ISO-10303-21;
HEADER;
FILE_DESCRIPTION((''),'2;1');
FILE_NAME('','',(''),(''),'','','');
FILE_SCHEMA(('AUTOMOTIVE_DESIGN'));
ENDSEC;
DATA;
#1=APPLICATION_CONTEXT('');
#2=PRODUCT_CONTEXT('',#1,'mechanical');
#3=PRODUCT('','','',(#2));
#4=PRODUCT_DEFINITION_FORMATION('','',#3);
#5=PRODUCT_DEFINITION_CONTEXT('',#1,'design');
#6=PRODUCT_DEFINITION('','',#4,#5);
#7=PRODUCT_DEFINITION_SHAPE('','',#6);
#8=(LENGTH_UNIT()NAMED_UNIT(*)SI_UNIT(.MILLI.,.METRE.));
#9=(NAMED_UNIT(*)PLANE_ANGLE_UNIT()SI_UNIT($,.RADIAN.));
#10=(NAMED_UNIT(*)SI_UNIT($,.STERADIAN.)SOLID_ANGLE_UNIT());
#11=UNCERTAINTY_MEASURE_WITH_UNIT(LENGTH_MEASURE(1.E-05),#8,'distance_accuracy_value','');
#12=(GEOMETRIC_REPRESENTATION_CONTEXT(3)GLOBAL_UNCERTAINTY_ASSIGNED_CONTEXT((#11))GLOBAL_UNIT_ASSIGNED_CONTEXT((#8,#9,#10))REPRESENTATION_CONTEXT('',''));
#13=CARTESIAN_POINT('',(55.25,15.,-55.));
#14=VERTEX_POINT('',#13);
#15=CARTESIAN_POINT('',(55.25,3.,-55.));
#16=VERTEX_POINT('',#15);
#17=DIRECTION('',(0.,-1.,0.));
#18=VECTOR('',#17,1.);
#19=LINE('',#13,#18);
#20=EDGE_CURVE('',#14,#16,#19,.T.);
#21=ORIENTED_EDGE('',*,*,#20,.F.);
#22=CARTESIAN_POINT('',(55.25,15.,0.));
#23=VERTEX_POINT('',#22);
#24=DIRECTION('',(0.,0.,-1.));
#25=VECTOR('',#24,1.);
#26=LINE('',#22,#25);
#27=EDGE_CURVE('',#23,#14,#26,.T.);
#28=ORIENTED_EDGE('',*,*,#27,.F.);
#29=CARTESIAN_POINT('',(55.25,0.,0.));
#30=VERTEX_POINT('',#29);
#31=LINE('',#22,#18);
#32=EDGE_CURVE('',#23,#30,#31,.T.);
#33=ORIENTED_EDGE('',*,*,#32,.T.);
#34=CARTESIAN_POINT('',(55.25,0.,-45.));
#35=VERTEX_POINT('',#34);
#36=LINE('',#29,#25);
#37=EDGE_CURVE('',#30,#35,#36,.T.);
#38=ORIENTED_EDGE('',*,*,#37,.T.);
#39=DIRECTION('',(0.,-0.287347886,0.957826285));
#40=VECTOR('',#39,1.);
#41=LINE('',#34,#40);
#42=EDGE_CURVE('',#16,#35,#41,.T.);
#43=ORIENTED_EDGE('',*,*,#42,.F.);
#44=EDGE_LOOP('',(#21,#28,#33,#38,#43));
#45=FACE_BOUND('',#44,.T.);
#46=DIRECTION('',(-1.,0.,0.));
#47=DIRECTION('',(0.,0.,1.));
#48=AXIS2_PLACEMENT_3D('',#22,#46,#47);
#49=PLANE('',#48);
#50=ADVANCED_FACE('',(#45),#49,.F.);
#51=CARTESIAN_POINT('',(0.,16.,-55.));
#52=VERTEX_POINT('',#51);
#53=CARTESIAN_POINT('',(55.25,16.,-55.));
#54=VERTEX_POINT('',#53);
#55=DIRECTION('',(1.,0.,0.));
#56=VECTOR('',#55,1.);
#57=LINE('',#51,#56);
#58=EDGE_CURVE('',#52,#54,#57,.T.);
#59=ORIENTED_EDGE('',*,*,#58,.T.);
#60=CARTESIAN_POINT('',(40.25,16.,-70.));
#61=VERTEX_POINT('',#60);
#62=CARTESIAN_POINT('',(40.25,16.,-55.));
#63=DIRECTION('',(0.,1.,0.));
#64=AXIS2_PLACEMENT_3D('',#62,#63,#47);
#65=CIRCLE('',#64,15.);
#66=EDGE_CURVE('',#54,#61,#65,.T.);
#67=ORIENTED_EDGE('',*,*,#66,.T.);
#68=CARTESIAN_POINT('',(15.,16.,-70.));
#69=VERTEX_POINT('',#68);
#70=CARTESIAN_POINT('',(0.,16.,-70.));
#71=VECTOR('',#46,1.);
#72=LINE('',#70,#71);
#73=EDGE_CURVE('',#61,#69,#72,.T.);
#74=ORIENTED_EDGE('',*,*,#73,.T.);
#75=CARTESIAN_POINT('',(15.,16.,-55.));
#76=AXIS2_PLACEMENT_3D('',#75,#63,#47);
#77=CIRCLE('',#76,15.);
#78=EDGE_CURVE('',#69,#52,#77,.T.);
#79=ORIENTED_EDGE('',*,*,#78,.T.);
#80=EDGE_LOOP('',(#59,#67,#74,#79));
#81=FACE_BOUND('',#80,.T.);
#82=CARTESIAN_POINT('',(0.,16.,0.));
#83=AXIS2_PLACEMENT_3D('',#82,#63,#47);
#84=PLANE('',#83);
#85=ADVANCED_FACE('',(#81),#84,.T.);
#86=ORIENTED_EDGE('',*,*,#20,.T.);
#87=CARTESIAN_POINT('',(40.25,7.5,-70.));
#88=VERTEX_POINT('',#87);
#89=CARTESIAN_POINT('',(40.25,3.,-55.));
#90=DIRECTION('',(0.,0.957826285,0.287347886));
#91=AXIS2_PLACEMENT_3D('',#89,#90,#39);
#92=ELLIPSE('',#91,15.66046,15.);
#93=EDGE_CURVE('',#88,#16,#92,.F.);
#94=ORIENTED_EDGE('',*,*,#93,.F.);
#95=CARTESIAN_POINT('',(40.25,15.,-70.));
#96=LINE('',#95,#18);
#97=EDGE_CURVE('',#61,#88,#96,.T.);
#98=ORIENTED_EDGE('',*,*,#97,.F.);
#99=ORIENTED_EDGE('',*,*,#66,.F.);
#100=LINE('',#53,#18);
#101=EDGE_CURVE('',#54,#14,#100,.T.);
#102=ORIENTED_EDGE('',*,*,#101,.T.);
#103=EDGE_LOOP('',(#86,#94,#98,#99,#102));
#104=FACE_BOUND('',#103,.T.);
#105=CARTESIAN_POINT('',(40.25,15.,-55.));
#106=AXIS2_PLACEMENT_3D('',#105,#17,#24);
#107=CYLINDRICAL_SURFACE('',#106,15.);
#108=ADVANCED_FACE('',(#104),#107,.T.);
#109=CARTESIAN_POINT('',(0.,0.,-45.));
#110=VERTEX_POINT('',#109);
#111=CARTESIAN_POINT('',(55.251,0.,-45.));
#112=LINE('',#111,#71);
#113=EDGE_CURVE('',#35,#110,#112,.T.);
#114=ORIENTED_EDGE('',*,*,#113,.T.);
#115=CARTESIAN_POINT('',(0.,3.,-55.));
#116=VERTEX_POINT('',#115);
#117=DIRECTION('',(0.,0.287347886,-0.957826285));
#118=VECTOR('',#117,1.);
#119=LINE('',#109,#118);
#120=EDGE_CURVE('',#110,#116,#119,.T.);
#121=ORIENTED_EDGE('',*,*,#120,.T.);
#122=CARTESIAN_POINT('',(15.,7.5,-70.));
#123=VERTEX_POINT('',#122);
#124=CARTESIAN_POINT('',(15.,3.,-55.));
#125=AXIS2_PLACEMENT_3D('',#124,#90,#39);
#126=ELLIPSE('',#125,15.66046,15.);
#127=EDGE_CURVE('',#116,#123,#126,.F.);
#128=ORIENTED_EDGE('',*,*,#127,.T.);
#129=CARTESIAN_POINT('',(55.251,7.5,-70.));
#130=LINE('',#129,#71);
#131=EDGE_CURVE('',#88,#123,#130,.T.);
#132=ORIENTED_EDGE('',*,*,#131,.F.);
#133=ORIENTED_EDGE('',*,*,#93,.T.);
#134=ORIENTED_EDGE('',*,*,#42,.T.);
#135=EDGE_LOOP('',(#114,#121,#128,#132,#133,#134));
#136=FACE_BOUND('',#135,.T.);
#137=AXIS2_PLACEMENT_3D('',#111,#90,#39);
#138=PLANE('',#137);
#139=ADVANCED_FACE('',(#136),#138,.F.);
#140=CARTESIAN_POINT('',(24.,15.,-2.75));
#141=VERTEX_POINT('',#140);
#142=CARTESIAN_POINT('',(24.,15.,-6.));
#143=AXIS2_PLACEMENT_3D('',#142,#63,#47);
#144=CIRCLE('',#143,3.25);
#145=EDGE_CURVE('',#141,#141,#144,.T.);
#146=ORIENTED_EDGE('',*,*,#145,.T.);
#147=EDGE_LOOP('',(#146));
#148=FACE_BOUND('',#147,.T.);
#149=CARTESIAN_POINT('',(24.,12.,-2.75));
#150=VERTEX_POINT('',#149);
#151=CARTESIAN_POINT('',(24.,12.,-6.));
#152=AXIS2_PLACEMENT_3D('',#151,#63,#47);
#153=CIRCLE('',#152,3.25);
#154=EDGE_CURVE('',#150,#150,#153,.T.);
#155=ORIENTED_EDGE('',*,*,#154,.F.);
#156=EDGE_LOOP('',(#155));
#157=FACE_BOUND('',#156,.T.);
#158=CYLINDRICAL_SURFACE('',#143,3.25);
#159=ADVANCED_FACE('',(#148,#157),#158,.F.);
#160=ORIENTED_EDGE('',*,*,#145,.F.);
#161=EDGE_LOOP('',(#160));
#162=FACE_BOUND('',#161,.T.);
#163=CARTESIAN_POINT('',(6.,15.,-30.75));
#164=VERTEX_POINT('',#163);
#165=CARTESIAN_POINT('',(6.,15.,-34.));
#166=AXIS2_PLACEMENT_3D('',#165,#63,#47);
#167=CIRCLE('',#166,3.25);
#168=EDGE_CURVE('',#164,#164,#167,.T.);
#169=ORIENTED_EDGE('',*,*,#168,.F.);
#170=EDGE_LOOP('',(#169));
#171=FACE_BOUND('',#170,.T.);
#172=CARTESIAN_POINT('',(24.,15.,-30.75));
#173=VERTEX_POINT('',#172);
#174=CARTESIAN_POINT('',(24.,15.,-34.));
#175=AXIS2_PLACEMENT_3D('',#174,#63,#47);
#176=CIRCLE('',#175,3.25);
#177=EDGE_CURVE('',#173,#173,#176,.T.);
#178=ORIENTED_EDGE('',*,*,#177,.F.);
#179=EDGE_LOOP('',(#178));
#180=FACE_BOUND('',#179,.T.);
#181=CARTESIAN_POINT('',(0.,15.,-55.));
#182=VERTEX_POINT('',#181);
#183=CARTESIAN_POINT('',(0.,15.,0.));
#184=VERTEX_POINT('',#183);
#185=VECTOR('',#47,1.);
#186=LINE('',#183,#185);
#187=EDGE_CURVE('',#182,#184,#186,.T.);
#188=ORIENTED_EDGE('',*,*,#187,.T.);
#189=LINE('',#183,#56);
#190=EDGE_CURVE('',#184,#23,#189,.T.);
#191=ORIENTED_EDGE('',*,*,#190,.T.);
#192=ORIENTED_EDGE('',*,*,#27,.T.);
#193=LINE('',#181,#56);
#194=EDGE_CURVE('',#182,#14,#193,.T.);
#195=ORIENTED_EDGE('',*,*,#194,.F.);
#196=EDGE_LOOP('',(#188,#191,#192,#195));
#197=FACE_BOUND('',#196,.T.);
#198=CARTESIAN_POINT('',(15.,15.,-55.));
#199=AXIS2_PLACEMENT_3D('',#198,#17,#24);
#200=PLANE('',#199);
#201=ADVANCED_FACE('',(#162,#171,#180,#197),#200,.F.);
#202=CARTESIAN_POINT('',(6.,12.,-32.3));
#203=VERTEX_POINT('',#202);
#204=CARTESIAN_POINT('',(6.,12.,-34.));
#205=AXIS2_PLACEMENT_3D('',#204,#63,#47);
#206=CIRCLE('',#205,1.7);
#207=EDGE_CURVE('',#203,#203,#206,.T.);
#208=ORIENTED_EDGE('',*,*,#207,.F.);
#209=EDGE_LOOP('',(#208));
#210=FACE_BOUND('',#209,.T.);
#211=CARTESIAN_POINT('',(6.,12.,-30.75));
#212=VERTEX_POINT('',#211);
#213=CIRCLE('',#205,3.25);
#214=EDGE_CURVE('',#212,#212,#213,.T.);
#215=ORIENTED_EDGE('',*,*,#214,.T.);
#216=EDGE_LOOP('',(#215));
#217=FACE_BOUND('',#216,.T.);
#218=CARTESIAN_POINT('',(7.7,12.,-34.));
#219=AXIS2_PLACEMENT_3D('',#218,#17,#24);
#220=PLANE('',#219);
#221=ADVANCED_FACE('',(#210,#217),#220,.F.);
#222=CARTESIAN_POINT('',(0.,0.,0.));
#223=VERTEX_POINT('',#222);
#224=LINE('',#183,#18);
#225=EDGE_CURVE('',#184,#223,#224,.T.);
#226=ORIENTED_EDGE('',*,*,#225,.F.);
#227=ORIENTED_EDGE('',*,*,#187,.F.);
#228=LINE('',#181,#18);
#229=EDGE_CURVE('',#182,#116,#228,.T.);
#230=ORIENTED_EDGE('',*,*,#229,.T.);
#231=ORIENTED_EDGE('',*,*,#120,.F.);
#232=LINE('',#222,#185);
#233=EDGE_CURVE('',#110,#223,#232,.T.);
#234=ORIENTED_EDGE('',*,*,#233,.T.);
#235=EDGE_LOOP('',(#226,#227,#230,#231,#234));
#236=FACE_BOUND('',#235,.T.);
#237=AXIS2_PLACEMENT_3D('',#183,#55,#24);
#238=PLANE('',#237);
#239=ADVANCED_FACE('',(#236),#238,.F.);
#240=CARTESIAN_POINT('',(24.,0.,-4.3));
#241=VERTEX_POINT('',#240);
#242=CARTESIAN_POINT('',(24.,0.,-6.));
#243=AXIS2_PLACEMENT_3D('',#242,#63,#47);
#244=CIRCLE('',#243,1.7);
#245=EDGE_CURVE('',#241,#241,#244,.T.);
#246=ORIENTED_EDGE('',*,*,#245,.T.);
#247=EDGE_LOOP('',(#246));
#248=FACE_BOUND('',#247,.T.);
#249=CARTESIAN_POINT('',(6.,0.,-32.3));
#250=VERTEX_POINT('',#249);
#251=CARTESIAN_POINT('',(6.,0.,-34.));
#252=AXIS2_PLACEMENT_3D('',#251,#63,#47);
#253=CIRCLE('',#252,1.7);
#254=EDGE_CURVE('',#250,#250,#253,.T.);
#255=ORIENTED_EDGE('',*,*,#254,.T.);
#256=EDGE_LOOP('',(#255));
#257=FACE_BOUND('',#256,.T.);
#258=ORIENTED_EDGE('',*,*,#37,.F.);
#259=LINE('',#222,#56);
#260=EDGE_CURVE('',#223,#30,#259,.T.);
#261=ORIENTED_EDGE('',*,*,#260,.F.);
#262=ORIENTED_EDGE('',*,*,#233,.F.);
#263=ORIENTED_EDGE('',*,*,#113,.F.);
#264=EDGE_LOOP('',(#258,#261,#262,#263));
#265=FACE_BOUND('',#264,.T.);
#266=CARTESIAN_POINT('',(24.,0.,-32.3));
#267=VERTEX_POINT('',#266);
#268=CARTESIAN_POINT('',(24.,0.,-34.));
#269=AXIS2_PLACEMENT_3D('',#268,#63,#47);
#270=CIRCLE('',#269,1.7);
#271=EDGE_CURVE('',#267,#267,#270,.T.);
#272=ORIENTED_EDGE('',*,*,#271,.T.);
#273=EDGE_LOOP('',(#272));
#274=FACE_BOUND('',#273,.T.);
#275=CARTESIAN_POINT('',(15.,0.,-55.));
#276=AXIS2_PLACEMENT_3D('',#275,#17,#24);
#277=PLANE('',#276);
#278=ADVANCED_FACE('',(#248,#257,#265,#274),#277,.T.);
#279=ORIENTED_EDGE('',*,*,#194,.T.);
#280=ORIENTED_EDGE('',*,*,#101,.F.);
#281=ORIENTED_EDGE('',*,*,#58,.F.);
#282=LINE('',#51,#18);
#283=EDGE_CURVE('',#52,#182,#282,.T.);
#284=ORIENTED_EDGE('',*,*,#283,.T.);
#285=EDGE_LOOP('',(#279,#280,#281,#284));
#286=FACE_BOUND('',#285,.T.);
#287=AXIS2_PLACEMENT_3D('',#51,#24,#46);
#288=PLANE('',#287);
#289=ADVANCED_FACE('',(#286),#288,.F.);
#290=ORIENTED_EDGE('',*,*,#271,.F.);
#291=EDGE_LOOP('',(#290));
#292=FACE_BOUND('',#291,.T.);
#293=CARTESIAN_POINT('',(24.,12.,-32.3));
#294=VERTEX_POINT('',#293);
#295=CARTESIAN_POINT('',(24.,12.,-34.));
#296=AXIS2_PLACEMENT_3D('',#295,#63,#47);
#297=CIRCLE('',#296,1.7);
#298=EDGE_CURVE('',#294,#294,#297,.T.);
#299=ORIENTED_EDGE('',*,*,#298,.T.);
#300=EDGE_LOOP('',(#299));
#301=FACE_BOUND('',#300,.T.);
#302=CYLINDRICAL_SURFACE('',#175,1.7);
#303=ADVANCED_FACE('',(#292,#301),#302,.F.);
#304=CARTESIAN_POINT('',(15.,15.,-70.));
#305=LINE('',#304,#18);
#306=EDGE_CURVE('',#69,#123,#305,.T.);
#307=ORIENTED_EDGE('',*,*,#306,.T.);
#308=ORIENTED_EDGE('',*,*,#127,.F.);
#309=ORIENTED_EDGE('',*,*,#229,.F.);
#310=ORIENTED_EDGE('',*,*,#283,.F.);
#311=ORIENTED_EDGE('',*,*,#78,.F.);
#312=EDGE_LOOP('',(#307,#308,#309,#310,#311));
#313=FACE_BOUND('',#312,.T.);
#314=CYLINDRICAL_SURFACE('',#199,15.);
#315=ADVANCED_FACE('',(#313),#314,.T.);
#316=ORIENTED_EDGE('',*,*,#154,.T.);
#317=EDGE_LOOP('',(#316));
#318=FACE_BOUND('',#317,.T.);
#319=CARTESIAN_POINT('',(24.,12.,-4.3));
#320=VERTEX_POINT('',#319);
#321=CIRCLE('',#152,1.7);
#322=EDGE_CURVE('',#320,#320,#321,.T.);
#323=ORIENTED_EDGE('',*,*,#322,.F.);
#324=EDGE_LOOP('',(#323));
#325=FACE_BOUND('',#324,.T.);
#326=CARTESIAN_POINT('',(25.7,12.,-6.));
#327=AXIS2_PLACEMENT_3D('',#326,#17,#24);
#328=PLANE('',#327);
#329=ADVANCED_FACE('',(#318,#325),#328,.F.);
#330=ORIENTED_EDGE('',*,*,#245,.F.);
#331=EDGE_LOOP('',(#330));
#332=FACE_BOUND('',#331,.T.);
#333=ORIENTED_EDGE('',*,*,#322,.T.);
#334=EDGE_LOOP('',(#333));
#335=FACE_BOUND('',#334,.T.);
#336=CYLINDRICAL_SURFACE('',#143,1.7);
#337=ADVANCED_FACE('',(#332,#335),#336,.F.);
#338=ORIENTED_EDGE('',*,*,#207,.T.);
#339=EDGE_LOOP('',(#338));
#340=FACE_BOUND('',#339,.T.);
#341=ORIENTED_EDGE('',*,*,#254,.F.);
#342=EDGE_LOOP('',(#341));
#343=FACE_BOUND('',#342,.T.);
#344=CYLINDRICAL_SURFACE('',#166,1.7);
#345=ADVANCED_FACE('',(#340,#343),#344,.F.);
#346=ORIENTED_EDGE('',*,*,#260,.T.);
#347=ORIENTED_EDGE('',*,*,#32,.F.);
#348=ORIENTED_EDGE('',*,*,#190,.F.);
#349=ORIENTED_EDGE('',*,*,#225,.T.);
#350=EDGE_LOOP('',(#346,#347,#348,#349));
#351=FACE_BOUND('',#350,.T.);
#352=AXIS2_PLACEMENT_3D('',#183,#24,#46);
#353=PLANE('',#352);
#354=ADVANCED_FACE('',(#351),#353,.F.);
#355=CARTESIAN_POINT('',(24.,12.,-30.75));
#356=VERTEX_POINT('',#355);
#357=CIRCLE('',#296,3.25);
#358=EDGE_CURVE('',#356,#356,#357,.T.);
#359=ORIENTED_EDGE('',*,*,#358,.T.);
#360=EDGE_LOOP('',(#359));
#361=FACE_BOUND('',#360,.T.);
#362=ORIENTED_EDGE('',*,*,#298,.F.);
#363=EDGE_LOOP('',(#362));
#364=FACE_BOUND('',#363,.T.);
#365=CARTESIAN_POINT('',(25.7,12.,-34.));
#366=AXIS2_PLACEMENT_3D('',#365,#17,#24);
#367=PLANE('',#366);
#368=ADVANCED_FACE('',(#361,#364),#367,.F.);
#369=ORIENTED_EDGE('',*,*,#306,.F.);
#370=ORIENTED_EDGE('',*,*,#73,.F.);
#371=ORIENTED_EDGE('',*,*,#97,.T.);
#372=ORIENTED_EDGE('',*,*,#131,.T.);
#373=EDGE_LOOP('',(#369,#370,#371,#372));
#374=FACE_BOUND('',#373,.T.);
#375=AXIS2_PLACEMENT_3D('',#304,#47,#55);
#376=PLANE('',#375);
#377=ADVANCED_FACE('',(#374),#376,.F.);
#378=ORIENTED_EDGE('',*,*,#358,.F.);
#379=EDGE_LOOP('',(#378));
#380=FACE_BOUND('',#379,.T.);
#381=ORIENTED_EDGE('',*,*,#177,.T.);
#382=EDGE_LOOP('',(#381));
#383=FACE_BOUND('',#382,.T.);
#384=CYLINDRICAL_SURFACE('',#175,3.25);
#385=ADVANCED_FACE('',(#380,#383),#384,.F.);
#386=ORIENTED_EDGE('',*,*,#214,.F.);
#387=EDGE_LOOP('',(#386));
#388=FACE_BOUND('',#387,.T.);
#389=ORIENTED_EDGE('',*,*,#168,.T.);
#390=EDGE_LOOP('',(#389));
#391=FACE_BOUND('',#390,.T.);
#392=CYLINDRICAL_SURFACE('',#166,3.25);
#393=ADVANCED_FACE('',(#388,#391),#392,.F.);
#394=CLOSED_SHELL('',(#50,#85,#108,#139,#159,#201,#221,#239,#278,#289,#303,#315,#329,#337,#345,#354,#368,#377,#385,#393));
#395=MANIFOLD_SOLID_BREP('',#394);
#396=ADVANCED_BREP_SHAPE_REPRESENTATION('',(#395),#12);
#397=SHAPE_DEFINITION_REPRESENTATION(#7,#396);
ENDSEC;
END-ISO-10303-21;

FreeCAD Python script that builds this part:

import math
import FreeCAD as App
import Part
import Sketcher
from FreeCAD import Vector

doc = App.newDocument("Part")
body = doc.addObject("PartDesign::Body", "Body")

# Sketch on XZ plane
sketch1 = body.newObject("Sketcher::SketchObject", "Sketch")
sketch1.AttachmentSupport = (doc.getObject("XZ_Plane"), [""])
sketch1.MapMode = "FlatFace"
sketch1.addGeometry(Part.LineSegment(Vector(0, 0, 0), Vector(55, 0, 0)), False)
sketch1.addGeometry(Part.LineSegment(Vector(55, 0, 0), Vector(55, -55, 0)), False)
sketch1.addGeometry(Part.ArcOfCircle(Part.Circle(Vector(40, -55, 0), Vector(0, 0, 1), 15), math.radians(-90), math.radians(0)), False)
sketch1.addGeometry(Part.LineSegment(Vector(40, -70, 0), Vector(15, -70, 0)), False)
sketch1.addGeometry(Part.ArcOfCircle(Part.Circle(Vector(15, -55, 0), Vector(0, 0, 1), 15), math.radians(180), math.radians(270)), False)
sketch1.addGeometry(Part.LineSegment(Vector(0, -55, 0), Vector(0, 0, 0)), False)
sketch1.addConstraint(Sketcher.Constraint("Coincident", 0, 2, 1, 1))
sketch1.addConstraint(Sketcher.Constraint("Tangent", 1, 2, 2, 2))
sketch1.addConstraint(Sketcher.Constraint("Tangent", 2, 1, 3, 1))
sketch1.addConstraint(Sketcher.Constraint("Tangent", 3, 2, 4, 2))
sketch1.addConstraint(Sketcher.Constraint("Tangent", 4, 1, 5, 1))
sketch1.addConstraint(Sketcher.Constraint("Coincident", 5, 2, 0, 1))
sketch1.addConstraint(Sketcher.Constraint("Horizontal", 0))
sketch1.addConstraint(Sketcher.Constraint("Vertical", 1))
sketch1.addConstraint(Sketcher.Constraint("Horizontal", 3))
sketch1.addConstraint(Sketcher.Constraint("Vertical", 5))
sketch1.addConstraint(Sketcher.Constraint("Coincident", 5, 2, -1, 1))
sketch1.addConstraint(Sketcher.Constraint("Equal", 2, 4))
sketch1.addConstraint(Sketcher.Constraint("Radius", 2, 15.0))
sketch1.addConstraint(Sketcher.Constraint("DistanceY", 1, 2, 1, 1, 55.0))
sketch1.addConstraint(Sketcher.Constraint("DistanceX", 0, 1, 0, 2, 55.25))
pad1 = body.newObject("PartDesign::Pad", "Pad")
pad1.Profile = sketch1
pad1.Length = 15
pad1.Reversed = True

# Sketch on XZ plane
sketch2 = body.newObject("Sketcher::SketchObject", "Sketch001")
sketch2.AttachmentSupport = (doc.getObject("XZ_Plane"), [""])
sketch2.MapMode = "FlatFace"
sketch2.AttachmentOffset = App.Placement(Vector(0, 0, -15), App.Rotation())
sketch2.addGeometry(Part.Circle(Vector(6, -34, 0), Vector(0, 0, 1), 1.7), False)
sketch2.addGeometry(Part.Circle(Vector(24, -34, 0), Vector(0, 0, 1), 1.7), False)
sketch2.addGeometry(Part.Circle(Vector(24, -6, 0), Vector(0, 0, 1), 1.7), False)
sketch2.addConstraint(Sketcher.Constraint("Equal", 0, 1))
sketch2.addConstraint(Sketcher.Constraint("Equal", 1, 2))
sketch2.addConstraint(Sketcher.Constraint("Horizontal", 0, 3, 1, 3))
sketch2.addConstraint(Sketcher.Constraint("Vertical", 1, 3, 2, 3))
sketch2.addConstraint(Sketcher.Constraint("Diameter", 0, 3.4))
sketch2.addConstraint(Sketcher.Constraint("DistanceX", -1, 1, 0, 3, 6.0))
sketch2.addConstraint(Sketcher.Constraint("DistanceY", 0, 3, -1, 1, 34.0))
sketch2.addConstraint(Sketcher.Constraint("DistanceX", -1, 1, 1, 3, 24.0))
sketch2.addConstraint(Sketcher.Constraint("DistanceY", 2, 3, -1, 1, 6.0))
doc.recompute()
hole = body.newObject("PartDesign::Hole", "Hole")
hole.Profile = sketch2
hole.ThreadType = "None"
hole.Diameter = 3.4
hole.DepthType = "ThroughAll"
hole.HoleCutType = "Counterbore"
hole.HoleCutDiameter = 6.5
hole.HoleCutDepth = 3
hole.Reversed = True

# Sketch on YZ plane
sketch3 = body.newObject("Sketcher::SketchObject", "Sketch002")
sketch3.AttachmentSupport = (doc.getObject("YZ_Plane"), [""])
sketch3.MapMode = "FlatFace"
sketch3.addGeometry(Part.LineSegment(Vector(0, -70, 0), Vector(0, -45, 0)), False)
sketch3.addGeometry(Part.LineSegment(Vector(0, -45, 0), Vector(8, -70, 0)), False)
sketch3.addGeometry(Part.LineSegment(Vector(8, -70, 0), Vector(0, -70, 0)), False)
sketch3.addConstraint(Sketcher.Constraint("Coincident", 0, 2, 1, 1))
sketch3.addConstraint(Sketcher.Constraint("Coincident", 1, 2, 2, 1))
sketch3.addConstraint(Sketcher.Constraint("Coincident", 2, 2, 0, 1))
sketch3.addConstraint(Sketcher.Constraint("Vertical", 0))
sketch3.addConstraint(Sketcher.Constraint("Horizontal", 2))
sketch3.addConstraint(Sketcher.Constraint("PointOnObject", 0, 2, -2))
sketch3.addConstraint(Sketcher.Constraint("DistanceY", 0, 1, 0, 2, 25.0))
sketch3.addConstraint(Sketcher.Constraint("DistanceX", 2, 2, 2, 1, 7.5))
sketch3.addConstraint(Sketcher.Constraint("DistanceY", 0, 2, -1, 1, 45.0))
pocket1 = body.newObject("PartDesign::Pocket", "Pocket")
pocket1.Profile = sketch3
pocket1.Length = 55.25
pocket1.Reversed = True

# Sketch on XZ plane
sketch4 = body.newObject("Sketcher::SketchObject", "Sketch003")
sketch4.AttachmentSupport = (doc.getObject("XZ_Plane"), [""])
sketch4.MapMode = "FlatFace"
sketch4.AttachmentOffset = App.Placement(Vector(0, 0, -15), App.Rotation())
sketch4.addGeometry(Part.ArcOfCircle(Part.Circle(Vector(15, -55, 0), Vector(0, 0, 1), 15), math.radians(180), math.radians(270)), False)
sketch4.addGeometry(Part.LineSegment(Vector(0, -55, 0), Vector(55, -55, 0)), False)
sketch4.addGeometry(Part.ArcOfCircle(Part.Circle(Vector(40, -55, 0), Vector(0, 0, 1), 15), math.radians(-90), math.radians(0)), False)
sketch4.addGeometry(Part.LineSegment(Vector(40, -70, 0), Vector(15, -70, 0)), False)
sketch4.addConstraint(Sketcher.Constraint("Coincident", 0, 1, 1, 1))
sketch4.addConstraint(Sketcher.Constraint("Coincident", 1, 2, 2, 2))
sketch4.addConstraint(Sketcher.Constraint("Tangent", 2, 1, 3, 1))
sketch4.addConstraint(Sketcher.Constraint("Tangent", 3, 2, 0, 2))
sketch4.addConstraint(Sketcher.Constraint("Horizontal", 1))
sketch4.addConstraint(Sketcher.Constraint("Horizontal", 3))
sketch4.addConstraint(Sketcher.Constraint("Equal", 0, 2))
sketch4.addConstraint(Sketcher.Constraint("PointOnObject", 0, 1, -2))
sketch4.addConstraint(Sketcher.Constraint("Horizontal", 2, 3, 0, 1))
sketch4.addConstraint(Sketcher.Constraint("Radius", 0, 15.0))
sketch4.addConstraint(Sketcher.Constraint("DistanceY", 0, 3, -1, 1, 55.0))
sketch4.addConstraint(Sketcher.Constraint("DistanceX", 1, 1, 1, 2, 55.25))
pad2 = body.newObject("PartDesign::Pad", "Pad001")
pad2.Profile = sketch4
pad2.Length = 1
pad2.Reversed = True

doc.recompute()
